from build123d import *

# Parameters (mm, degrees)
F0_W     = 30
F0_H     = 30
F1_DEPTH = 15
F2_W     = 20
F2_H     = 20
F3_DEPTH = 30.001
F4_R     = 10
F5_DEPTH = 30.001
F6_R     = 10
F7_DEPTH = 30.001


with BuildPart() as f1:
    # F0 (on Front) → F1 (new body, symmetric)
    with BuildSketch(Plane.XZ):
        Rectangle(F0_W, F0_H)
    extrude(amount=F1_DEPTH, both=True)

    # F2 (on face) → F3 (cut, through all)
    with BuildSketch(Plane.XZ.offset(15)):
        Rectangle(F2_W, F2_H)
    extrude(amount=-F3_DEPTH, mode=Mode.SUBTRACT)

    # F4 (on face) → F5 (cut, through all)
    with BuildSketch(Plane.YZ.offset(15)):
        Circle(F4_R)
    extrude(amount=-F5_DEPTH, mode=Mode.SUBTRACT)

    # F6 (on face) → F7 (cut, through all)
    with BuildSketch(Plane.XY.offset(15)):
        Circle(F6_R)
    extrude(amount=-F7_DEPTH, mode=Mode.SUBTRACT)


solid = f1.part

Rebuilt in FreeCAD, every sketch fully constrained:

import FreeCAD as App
import Part
import Sketcher
Q = App.Units.Quantity

doc = App.newDocument("Part")
body = doc.addObject("PartDesign::Body", "Body")

# Sketch on XZ plane
sketch1 = body.newObject("Sketcher::SketchObject", "Sketch")
sketch1.AttachmentSupport = (doc.getObject("XZ_Plane"), [""])
sketch1.MapMode = "FlatFace"
sketch1.addGeometry([
    Part.LineSegment(App.Vector(-15, 15, 0), App.Vector(-15, -15, 0)),
    Part.LineSegment(App.Vector(-15, -15, 0), App.Vector(15, -15, 0)),
    Part.LineSegment(App.Vector(15, -15, 0), App.Vector(15, 15, 0)),
    Part.LineSegment(App.Vector(15, 15, 0), App.Vector(-15, 15, 0)),
], False)
sketch1.addConstraint([
    Sketcher.Constraint("Coincident", 0, 2, 1, 1),
    Sketcher.Constraint("Coincident", 1, 2, 2, 1),
    Sketcher.Constraint("Coincident", 2, 2, 3, 1),
    Sketcher.Constraint("Coincident", 3, 2, 0, 1),
    Sketcher.Constraint("Vertical", 0),
    Sketcher.Constraint("Horizontal", 1),
    Sketcher.Constraint("Vertical", 2),
    Sketcher.Constraint("Horizontal", 3),
    Sketcher.Constraint("Symmetric", 0, 2, 2, 2, -1, 1),
    Sketcher.Constraint("Equal", 3, 0),
    Sketcher.Constraint("DistanceX", 1, 1, 1, 2, Q("30 mm")),
])
pad1 = body.newObject("PartDesign::Pad", "Pad")
pad1.Profile = sketch1
pad1.Length = 30
pad1.Midplane = True

# Sketch on XZ plane
sketch2 = body.newObject("Sketcher::SketchObject", "Sketch001")
sketch2.AttachmentSupport = (doc.getObject("XZ_Plane"), [""])
sketch2.MapMode = "FlatFace"
sketch2.AttachmentOffset = App.Placement(App.Vector(0, 0, 15), App.Rotation())
sketch2.addGeometry([
    Part.LineSegment(App.Vector(-10, 10, 0), App.Vector(-10, -10, 0)),
    Part.LineSegment(App.Vector(-10, -10, 0), App.Vector(10, -10, 0)),
    Part.LineSegment(App.Vector(10, -10, 0), App.Vector(10, 10, 0)),
    Part.LineSegment(App.Vector(10, 10, 0), App.Vector(-10, 10, 0)),
], False)
sketch2.addConstraint([
    Sketcher.Constraint("Coincident", 0, 2, 1, 1),
    Sketcher.Constraint("Coincident", 1, 2, 2, 1),
    Sketcher.Constraint("Coincident", 2, 2, 3, 1),
    Sketcher.Constraint("Coincident", 3, 2, 0, 1),
    Sketcher.Constraint("Vertical", 0),
    Sketcher.Constraint("Horizontal", 1),
    Sketcher.Constraint("Vertical", 2),
    Sketcher.Constraint("Horizontal", 3),
    Sketcher.Constraint("Symmetric", 0, 2, 2, 2, -1, 1),
    Sketcher.Constraint("Equal", 3, 0),
    Sketcher.Constraint("DistanceX", 1, 1, 1, 2, Q("20 mm")),
])
pocket1 = body.newObject("PartDesign::Pocket", "Pocket")
pocket1.Profile = sketch2
pocket1.Type = "ThroughAll"

# Sketch on YZ plane
sketch3 = body.newObject("Sketcher::SketchObject", "Sketch002")
sketch3.AttachmentSupport = (doc.getObject("YZ_Plane"), [""])
sketch3.MapMode = "FlatFace"
sketch3.AttachmentOffset = App.Placement(App.Vector(0, 0, 15), App.Rotation())
sketch3.addGeometry(Part.Circle(App.Vector(0, 0, 0), App.Vector(0, 0, 1), 10), False)
sketch3.addConstraint([
    Sketcher.Constraint("Coincident", 0, 3, -1, 1),
    Sketcher.Constraint("Diameter", 0, Q("20 mm")),
])
pocket2 = body.newObject("PartDesign::Pocket", "Pocket001")
pocket2.Profile = sketch3
pocket2.Type = "ThroughAll"

# Sketch on XY plane
sketch4 = body.newObject("Sketcher::SketchObject", "Sketch003")
sketch4.AttachmentSupport = (doc.getObject("XY_Plane"), [""])
sketch4.MapMode = "FlatFace"
sketch4.AttachmentOffset = App.Placement(App.Vector(0, 0, 15), App.Rotation())
sketch4.addGeometry(Part.Circle(App.Vector(0, 0, 0), App.Vector(0, 0, 1), 10), False)
sketch4.addConstraint([
    Sketcher.Constraint("Coincident", 0, 3, -1, 1),
    Sketcher.Constraint("Diameter", 0, Q("20 mm")),
])
pocket3 = body.newObject("PartDesign::Pocket", "Pocket002")
pocket3.Profile = sketch4
pocket3.Type = "ThroughAll"

doc.recompute()
